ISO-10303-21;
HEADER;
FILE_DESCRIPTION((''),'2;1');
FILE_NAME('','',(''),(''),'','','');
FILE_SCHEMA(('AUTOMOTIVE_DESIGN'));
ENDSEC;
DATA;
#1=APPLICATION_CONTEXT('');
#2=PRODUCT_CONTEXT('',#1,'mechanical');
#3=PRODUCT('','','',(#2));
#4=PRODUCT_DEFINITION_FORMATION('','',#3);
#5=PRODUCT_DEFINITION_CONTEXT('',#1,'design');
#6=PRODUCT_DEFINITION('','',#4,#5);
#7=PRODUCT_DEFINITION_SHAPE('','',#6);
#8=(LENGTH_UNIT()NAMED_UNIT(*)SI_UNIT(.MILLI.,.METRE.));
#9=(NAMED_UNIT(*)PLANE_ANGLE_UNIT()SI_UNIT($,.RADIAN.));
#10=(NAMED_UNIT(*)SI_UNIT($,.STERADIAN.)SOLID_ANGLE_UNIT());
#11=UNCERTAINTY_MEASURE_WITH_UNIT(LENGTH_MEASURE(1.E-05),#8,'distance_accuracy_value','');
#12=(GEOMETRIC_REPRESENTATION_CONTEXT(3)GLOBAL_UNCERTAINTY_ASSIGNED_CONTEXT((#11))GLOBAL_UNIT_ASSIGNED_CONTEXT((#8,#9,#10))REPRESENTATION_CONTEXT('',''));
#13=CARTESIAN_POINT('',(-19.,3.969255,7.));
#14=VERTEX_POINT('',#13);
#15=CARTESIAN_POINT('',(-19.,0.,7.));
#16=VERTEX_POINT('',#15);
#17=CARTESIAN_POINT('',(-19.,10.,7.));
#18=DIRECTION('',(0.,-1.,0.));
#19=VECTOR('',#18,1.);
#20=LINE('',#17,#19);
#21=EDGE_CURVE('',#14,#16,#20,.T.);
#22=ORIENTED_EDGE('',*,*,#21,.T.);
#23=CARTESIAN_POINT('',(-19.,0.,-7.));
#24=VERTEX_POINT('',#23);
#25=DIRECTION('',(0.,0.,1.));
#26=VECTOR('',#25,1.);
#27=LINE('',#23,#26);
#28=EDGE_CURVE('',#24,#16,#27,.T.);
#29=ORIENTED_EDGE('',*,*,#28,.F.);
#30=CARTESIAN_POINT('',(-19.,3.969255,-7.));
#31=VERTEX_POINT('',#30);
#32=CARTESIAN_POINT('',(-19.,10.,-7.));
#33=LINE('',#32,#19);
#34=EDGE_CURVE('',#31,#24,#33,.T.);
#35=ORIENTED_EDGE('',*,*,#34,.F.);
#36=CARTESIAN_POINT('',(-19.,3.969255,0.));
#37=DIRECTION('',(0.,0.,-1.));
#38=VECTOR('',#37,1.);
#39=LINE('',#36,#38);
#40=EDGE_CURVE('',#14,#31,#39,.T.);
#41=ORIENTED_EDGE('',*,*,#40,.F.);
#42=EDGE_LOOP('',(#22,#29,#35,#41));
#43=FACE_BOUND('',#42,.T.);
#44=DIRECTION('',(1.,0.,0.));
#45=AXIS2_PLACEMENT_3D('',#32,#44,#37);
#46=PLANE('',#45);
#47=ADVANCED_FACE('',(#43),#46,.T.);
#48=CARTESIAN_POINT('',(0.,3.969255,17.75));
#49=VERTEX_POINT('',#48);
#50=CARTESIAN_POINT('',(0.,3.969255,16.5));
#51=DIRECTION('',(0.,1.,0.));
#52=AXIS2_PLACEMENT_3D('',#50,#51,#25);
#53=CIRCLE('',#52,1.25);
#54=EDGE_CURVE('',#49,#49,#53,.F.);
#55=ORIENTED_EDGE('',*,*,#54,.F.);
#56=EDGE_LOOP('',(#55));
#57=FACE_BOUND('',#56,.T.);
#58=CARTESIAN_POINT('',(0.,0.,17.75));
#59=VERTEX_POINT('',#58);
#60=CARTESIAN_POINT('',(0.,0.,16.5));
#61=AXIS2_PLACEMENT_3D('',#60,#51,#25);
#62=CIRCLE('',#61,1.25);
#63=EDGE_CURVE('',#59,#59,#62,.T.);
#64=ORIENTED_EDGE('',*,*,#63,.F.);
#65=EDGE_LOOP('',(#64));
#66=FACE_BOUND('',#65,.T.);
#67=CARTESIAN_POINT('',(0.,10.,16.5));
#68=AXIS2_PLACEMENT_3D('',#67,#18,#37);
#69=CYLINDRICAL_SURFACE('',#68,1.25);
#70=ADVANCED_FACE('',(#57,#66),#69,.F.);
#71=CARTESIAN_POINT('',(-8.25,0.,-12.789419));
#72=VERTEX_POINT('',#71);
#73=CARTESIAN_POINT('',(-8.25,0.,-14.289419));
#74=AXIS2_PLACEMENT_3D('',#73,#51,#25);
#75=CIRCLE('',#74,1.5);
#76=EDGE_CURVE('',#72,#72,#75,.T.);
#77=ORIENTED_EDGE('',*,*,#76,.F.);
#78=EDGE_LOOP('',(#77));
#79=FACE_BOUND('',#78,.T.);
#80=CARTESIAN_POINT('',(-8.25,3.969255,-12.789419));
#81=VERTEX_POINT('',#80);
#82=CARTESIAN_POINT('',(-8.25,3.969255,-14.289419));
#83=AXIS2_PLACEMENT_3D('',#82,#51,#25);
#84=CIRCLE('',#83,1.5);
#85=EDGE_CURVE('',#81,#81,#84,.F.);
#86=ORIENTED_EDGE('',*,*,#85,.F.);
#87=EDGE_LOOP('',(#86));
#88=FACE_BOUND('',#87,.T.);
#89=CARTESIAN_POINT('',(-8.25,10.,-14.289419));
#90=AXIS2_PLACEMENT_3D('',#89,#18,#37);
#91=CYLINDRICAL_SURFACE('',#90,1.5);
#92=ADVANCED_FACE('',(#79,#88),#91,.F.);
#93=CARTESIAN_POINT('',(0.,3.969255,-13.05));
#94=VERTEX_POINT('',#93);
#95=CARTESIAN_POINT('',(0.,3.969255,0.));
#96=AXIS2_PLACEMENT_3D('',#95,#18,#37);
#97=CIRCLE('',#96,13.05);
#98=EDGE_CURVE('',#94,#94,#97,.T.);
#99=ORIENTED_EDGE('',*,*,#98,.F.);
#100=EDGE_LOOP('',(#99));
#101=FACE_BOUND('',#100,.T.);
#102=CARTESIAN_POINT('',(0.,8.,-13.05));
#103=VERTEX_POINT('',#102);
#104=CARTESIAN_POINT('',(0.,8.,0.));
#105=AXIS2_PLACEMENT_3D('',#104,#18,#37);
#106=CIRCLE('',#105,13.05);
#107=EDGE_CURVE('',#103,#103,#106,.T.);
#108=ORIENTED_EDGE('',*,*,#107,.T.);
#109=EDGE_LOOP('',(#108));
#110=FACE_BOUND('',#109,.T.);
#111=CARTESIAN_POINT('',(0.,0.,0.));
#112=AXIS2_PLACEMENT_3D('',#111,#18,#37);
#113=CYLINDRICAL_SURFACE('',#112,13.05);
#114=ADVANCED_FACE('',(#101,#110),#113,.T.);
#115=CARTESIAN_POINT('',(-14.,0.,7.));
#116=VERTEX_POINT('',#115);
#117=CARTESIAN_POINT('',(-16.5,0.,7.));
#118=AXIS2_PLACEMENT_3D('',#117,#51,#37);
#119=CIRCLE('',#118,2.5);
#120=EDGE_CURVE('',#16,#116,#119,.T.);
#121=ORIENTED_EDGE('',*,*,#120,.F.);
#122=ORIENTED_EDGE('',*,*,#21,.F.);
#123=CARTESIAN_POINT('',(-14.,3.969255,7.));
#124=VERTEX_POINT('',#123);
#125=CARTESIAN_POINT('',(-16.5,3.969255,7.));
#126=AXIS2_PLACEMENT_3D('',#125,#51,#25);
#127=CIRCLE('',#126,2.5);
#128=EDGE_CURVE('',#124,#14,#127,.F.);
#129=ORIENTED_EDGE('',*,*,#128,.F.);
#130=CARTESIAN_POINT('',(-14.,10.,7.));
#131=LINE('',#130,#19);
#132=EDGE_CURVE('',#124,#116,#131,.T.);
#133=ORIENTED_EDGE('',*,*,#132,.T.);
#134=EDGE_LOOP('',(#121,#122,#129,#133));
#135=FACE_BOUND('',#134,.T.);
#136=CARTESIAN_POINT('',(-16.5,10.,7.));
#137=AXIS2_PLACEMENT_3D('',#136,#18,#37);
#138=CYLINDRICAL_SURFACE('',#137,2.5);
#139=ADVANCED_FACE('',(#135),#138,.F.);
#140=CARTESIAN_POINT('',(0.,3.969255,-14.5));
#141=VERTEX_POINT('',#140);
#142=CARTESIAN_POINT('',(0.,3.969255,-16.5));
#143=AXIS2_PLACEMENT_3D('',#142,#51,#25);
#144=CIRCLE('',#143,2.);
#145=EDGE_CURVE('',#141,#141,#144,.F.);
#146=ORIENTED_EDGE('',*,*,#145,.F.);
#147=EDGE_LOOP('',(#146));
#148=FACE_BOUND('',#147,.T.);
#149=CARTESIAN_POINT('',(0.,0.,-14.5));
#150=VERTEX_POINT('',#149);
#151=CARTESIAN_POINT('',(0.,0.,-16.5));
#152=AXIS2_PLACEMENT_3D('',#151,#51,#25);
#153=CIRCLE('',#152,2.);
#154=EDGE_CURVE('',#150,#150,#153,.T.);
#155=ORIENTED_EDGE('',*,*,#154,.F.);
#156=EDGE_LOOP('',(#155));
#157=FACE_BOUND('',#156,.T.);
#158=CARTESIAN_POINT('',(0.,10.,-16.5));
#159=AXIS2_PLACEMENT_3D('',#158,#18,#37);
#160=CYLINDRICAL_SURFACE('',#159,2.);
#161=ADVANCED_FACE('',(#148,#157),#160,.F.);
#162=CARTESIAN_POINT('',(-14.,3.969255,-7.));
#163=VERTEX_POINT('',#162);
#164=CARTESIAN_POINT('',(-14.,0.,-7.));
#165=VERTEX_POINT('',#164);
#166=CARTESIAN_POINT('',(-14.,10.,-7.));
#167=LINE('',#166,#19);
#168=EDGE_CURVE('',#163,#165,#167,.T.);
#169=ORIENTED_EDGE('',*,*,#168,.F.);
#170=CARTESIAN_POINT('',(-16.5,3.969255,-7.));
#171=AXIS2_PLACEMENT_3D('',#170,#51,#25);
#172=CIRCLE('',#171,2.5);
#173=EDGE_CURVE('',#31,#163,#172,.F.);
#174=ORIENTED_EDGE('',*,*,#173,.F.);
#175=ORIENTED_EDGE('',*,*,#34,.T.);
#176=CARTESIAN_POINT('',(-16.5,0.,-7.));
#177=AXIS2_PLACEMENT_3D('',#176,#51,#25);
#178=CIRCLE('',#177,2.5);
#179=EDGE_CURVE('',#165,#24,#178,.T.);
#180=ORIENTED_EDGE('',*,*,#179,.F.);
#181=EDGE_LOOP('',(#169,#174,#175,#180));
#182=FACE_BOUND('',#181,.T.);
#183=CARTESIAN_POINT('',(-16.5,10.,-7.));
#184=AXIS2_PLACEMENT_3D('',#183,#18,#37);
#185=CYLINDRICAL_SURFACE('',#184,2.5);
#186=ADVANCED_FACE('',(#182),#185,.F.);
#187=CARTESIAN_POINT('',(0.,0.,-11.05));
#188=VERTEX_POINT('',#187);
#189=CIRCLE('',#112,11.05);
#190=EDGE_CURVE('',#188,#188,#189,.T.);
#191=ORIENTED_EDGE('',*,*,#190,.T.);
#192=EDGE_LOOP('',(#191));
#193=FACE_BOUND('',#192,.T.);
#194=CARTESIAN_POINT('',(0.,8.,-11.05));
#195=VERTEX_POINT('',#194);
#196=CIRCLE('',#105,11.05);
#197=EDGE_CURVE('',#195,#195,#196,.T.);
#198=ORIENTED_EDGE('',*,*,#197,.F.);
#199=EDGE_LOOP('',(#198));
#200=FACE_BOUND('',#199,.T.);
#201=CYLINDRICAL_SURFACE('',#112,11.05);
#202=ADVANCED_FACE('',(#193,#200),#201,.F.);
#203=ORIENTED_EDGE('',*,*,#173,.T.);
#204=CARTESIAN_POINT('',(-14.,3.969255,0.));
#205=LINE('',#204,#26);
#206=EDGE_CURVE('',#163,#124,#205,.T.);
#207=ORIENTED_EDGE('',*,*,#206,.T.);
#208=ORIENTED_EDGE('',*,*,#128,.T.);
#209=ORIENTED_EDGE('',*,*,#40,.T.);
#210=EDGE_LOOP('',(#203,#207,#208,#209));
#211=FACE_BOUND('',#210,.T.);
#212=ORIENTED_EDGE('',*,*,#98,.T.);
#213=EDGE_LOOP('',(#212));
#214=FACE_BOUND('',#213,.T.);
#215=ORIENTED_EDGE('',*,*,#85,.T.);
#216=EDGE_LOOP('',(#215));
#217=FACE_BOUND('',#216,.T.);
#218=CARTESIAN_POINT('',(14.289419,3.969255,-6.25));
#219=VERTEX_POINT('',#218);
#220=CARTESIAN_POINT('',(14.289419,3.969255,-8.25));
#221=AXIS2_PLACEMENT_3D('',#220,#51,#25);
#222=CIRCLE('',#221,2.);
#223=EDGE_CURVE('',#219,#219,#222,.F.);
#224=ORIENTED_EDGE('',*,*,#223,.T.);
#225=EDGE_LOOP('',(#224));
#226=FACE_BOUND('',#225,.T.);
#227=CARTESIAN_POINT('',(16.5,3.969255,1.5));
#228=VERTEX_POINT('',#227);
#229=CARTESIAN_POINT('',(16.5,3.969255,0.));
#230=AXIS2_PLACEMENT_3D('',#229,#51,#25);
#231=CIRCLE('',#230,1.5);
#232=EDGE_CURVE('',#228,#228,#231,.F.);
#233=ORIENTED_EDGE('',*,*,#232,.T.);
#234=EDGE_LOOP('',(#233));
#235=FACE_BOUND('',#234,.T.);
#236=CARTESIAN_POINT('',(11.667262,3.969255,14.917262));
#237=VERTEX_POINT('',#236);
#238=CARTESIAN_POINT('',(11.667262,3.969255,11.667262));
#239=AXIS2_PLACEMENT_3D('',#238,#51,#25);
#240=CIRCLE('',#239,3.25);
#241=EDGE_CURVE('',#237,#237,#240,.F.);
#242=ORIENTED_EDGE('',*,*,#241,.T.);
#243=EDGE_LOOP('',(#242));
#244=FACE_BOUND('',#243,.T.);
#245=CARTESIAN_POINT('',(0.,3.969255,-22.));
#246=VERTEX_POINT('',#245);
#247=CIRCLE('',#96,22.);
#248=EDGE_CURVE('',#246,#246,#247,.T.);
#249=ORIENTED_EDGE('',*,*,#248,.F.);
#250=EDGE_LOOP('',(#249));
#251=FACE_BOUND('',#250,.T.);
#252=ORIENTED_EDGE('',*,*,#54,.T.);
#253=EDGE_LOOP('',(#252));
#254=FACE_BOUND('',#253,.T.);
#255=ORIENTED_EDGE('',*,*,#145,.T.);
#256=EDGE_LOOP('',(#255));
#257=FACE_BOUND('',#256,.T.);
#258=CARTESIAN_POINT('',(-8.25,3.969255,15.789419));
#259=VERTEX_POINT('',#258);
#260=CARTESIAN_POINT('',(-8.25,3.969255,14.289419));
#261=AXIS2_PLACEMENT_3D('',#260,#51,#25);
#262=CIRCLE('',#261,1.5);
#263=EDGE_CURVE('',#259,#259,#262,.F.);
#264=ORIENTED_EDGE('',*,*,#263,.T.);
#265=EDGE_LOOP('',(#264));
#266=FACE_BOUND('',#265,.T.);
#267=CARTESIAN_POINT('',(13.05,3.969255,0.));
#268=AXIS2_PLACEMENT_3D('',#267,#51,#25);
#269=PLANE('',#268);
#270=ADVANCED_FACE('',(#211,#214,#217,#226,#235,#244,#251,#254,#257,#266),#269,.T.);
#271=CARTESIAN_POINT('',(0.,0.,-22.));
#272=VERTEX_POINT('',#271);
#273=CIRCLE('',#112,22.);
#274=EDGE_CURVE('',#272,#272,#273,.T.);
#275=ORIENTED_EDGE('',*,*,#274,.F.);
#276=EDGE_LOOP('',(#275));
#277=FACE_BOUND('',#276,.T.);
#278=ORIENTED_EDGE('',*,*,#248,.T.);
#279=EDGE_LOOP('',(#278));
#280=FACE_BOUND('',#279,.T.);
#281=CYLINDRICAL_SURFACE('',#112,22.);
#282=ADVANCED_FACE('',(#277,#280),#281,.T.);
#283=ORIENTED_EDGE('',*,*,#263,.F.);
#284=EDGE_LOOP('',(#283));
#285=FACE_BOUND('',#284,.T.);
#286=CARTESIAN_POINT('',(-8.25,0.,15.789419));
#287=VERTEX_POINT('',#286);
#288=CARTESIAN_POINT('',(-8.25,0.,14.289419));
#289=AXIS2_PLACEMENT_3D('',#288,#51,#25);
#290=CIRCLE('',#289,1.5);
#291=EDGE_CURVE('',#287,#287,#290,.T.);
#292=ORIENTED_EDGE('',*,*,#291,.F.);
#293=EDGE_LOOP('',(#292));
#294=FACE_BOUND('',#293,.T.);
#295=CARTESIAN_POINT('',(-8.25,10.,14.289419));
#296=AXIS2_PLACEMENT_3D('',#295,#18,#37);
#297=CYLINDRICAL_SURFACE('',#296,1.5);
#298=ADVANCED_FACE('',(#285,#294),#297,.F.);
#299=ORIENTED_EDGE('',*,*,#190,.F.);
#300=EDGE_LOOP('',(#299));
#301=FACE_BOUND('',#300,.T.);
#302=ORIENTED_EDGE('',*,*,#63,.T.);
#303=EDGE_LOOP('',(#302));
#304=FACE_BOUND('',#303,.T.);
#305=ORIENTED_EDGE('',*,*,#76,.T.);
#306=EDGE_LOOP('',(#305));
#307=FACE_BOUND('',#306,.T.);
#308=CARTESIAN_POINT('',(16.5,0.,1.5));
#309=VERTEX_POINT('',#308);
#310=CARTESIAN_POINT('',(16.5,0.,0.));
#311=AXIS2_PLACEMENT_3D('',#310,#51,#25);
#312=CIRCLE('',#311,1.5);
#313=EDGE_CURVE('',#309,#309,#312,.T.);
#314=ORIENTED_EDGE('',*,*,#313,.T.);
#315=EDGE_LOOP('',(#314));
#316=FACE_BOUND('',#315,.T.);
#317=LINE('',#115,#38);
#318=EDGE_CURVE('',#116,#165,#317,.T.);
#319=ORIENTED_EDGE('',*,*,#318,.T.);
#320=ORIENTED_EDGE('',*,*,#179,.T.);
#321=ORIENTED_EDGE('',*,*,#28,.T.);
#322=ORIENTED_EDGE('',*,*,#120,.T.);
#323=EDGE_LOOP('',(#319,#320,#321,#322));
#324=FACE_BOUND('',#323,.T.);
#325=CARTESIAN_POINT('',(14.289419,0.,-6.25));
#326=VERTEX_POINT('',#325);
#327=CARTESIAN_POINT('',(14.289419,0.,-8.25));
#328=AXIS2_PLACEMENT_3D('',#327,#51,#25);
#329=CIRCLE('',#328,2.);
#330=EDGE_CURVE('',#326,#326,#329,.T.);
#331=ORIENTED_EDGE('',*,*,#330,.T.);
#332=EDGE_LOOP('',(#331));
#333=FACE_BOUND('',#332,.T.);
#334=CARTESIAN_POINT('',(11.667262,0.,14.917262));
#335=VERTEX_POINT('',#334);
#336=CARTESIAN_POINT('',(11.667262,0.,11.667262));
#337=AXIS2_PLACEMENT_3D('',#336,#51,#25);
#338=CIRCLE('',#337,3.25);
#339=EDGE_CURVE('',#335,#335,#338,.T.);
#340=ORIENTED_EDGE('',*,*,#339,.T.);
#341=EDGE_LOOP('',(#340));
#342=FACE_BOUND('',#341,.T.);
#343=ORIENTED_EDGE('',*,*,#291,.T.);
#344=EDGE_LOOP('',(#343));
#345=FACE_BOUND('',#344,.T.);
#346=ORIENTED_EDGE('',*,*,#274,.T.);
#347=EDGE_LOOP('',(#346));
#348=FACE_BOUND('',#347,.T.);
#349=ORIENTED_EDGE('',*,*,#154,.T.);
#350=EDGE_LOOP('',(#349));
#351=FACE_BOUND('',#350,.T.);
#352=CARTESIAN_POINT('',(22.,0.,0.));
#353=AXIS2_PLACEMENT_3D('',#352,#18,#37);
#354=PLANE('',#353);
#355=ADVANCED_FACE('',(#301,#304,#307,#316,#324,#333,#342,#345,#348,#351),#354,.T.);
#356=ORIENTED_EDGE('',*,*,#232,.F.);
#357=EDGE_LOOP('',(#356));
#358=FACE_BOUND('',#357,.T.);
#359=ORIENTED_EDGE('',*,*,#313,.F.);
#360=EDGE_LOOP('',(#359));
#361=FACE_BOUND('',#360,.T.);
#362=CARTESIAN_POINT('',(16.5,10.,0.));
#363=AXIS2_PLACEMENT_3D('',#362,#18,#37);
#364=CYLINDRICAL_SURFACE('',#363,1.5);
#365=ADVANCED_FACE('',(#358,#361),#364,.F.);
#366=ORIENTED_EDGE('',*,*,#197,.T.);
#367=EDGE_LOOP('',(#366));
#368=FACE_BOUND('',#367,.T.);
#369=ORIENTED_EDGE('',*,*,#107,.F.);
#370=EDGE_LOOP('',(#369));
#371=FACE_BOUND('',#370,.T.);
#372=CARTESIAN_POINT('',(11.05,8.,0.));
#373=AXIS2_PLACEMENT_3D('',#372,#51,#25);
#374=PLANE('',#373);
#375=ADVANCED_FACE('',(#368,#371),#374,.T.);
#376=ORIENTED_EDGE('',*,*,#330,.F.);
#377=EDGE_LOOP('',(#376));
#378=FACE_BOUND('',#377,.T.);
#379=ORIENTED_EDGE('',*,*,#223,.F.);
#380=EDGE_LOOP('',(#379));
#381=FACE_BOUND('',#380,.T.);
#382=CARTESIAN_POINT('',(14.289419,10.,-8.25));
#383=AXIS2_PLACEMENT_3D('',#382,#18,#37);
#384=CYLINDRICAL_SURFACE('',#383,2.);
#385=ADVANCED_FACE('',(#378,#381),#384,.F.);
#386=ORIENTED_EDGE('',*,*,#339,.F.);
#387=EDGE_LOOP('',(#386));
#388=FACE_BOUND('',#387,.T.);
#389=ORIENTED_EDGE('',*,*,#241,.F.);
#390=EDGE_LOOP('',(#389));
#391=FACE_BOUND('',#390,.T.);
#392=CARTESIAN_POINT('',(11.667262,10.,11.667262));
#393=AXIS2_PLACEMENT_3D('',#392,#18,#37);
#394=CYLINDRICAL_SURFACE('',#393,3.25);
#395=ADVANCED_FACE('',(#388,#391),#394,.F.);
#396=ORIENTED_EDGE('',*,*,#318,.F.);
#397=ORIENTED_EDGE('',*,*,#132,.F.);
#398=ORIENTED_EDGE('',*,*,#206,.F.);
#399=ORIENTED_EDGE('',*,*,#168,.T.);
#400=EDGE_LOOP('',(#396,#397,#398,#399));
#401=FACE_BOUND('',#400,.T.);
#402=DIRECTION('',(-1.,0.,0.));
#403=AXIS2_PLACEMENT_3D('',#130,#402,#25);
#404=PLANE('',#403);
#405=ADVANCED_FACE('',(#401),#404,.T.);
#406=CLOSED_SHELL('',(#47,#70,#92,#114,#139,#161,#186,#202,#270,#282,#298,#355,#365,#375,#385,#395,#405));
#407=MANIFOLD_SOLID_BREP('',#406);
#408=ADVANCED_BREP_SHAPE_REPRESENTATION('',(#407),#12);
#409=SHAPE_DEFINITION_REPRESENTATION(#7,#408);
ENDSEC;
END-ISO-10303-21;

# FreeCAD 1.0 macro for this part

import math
import FreeCAD as App
import Part
import Sketcher
from FreeCAD import Vector

doc = App.newDocument("Part")
body = doc.addObject("PartDesign::Body", "Body")

# Sketch on XY plane
sketch1 = doc.addObject("Sketcher::SketchObject", "Sketch")
body.addObject(sketch1)
sketch1.AttachmentSupport = (doc.XY_Plane, [""])
sketch1.MapMode = "FlatFace"
sketch1.addGeometry([
    Part.LineSegment(Vector(11.1, 8, 0), Vector(11.1, 0, 0)),  # 0
    Part.LineSegment(Vector(11.1, 0, 0), Vector(22, 0, 0)),  # 1
    Part.LineSegment(Vector(22, 0, 0), Vector(22, 4, 0)),  # 2
    Part.LineSegment(Vector(22, 4, 0), Vector(13.1, 4, 0)),  # 3
    Part.LineSegment(Vector(13.1, 4, 0), Vector(13.1, 8, 0)),  # 4
    Part.LineSegment(Vector(13.1, 8, 0), Vector(11.1, 8, 0)),  # 5
], False)
sketch1.addConstraint([
    Sketcher.Constraint("Coincident", 0, 2, 1, 1),
    Sketcher.Constraint("Coincident", 1, 2, 2, 1),
    Sketcher.Constraint("Coincident", 2, 2, 3, 1),
    Sketcher.Constraint("Coincident", 3, 2, 4, 1),
    Sketcher.Constraint("Coincident", 4, 2, 5, 1),
    Sketcher.Constraint("Coincident", 5, 2, 0, 1),
    Sketcher.Constraint("Vertical", 0),
    Sketcher.Constraint("Horizontal", 1),
    Sketcher.Constraint("Vertical", 2),
    Sketcher.Constraint("Horizontal", 3),
    Sketcher.Constraint("Vertical", 4),
    Sketcher.Constraint("Horizontal", 5),
    Sketcher.Constraint("PointOnObject", 0, 2, -1),
    Sketcher.Constraint("DistanceX", 5, 2, 5, 1, 2.0),
    Sketcher.Constraint("DistanceY", 0, 2, 0, 1, 8.0),
    Sketcher.Constraint("DistanceX", -1, 1, 1, 2, 22.0),
    Sketcher.Constraint("DistanceX", 1, 1, 1, 2, 10.95),
    Sketcher.Constraint("DistanceY", 2, 1, 2, 2, 3.969255),
])
revolution = doc.addObject("PartDesign::Revolution", "Revolution")
body.addObject(revolution)
revolution.Profile = sketch1
revolution.ReferenceAxis = (sketch1, ["V_Axis"])
revolution.Angle = 360

# Sketch on XZ plane
sketch2 = doc.addObject("Sketcher::SketchObject", "Sketch001")
body.addObject(sketch2)
sketch2.AttachmentSupport = (doc.XZ_Plane, [""])
sketch2.MapMode = "FlatFace"
sketch2.addGeometry([
    Part.Circle(Vector(16.5, 0, 0), Vector(0, 0, 1), 1.5),  # 0
    Part.Circle(Vector(-8.2, 14.3, 0), Vector(0, 0, 1), 1.5),  # 1
    Part.Circle(Vector(-8.2, -14.3, 0), Vector(0, 0, 1), 1.5),  # 2
    Part.Circle(Vector(11.7, 11.7, 0), Vector(0, 0, 1), 3.2),  # 3
    Part.Circle(Vector(14.3, -8.2, 0), Vector(0, 0, 1), 2),  # 4
    Part.Circle(Vector(0, -16.5, 0), Vector(0, 0, 1), 2),  # 5
    Part.Circle(Vector(0, 16.5, 0), Vector(0, 0, 1), 1.2),  # 6
    Part.LineSegment(Vector(-14, 7, 0), Vector(-14, -7, 0)),  # 7
    Part.ArcOfCircle(Part.Circle(Vector(-16.5, -7, 0), Vector(0, 0, 1), 2.5), math.radians(180), math.radians(360)),  # 8
    Part.LineSegment(Vector(-19, -7, 0), Vector(-19, 7, 0)),  # 9
    Part.ArcOfCircle(Part.Circle(Vector(-16.5, 7, 0), Vector(0, 0, 1), 2.5), math.radians(0), math.radians(180)),  # 10
], False)
sketch2.addConstraint([
    Sketcher.Constraint("Tangent", 7, 2, 8, 2),
    Sketcher.Constraint("Tangent", 8, 1, 9, 1),
    Sketcher.Constraint("Tangent", 9, 2, 10, 2),
    Sketcher.Constraint("Tangent", 10, 1, 7, 1),
    Sketcher.Constraint("Vertical", 7),
    Sketcher.Constraint("Vertical", 9),
    Sketcher.Constraint("Equal", 0, 1),
    Sketcher.Constraint("Equal", 1, 2),
    Sketcher.Constraint("Equal", 4, 5),
    Sketcher.Constraint("Symmetric", 5, 3, 6, 3, -1, 1),
    Sketcher.Constraint("Symmetric", 1, 3, 2, 3, -1),
    Sketcher.Constraint("PointOnObject", 0, 3, -1),
    Sketcher.Constraint("PointOnObject", 5, 3, -2),
    Sketcher.Constraint("Diameter", 0, 3.0),
    Sketcher.Constraint("Diameter", 4, 4.0),
    Sketcher.Constraint("Diameter", 3, 6.5),
    Sketcher.Constraint("Diameter", 6, 2.5),
    Sketcher.Constraint("Radius", 8, 2.5),
    Sketcher.Constraint("DistanceY", 7, 2, 7, 1, 14.0),
    Sketcher.Constraint("DistanceY", 8, 3, -1, 1, 7.0),
    Sketcher.Constraint("DistanceX", 7, 2, -1, 1, 14.0),
    Sketcher.Constraint("DistanceX", -1, 1, 0, 3, 16.5),
    Sketcher.Constraint("DistanceY", 5, 3, -1, 1, 16.5),
    Sketcher.Constraint("DistanceX", 1, 3, -1, 1, 8.25),
    Sketcher.Constraint("DistanceY", 4, 3, -1, 1, 8.25),
    Sketcher.Constraint("DistanceY", -1, 1, 1, 3, 14.289419),
    Sketcher.Constraint("DistanceX", -1, 1, 3, 3, 11.667262),
    Sketcher.Constraint("DistanceY", -1, 1, 3, 3, 11.667262),
    Sketcher.Constraint("DistanceX", -1, 1, 4, 3, 14.289419),
])
pocket1 = doc.addObject("PartDesign::Pocket", "Pocket")
body.addObject(pocket1)
pocket1.Profile = sketch2
pocket1.Length = 10

doc.recompute()
